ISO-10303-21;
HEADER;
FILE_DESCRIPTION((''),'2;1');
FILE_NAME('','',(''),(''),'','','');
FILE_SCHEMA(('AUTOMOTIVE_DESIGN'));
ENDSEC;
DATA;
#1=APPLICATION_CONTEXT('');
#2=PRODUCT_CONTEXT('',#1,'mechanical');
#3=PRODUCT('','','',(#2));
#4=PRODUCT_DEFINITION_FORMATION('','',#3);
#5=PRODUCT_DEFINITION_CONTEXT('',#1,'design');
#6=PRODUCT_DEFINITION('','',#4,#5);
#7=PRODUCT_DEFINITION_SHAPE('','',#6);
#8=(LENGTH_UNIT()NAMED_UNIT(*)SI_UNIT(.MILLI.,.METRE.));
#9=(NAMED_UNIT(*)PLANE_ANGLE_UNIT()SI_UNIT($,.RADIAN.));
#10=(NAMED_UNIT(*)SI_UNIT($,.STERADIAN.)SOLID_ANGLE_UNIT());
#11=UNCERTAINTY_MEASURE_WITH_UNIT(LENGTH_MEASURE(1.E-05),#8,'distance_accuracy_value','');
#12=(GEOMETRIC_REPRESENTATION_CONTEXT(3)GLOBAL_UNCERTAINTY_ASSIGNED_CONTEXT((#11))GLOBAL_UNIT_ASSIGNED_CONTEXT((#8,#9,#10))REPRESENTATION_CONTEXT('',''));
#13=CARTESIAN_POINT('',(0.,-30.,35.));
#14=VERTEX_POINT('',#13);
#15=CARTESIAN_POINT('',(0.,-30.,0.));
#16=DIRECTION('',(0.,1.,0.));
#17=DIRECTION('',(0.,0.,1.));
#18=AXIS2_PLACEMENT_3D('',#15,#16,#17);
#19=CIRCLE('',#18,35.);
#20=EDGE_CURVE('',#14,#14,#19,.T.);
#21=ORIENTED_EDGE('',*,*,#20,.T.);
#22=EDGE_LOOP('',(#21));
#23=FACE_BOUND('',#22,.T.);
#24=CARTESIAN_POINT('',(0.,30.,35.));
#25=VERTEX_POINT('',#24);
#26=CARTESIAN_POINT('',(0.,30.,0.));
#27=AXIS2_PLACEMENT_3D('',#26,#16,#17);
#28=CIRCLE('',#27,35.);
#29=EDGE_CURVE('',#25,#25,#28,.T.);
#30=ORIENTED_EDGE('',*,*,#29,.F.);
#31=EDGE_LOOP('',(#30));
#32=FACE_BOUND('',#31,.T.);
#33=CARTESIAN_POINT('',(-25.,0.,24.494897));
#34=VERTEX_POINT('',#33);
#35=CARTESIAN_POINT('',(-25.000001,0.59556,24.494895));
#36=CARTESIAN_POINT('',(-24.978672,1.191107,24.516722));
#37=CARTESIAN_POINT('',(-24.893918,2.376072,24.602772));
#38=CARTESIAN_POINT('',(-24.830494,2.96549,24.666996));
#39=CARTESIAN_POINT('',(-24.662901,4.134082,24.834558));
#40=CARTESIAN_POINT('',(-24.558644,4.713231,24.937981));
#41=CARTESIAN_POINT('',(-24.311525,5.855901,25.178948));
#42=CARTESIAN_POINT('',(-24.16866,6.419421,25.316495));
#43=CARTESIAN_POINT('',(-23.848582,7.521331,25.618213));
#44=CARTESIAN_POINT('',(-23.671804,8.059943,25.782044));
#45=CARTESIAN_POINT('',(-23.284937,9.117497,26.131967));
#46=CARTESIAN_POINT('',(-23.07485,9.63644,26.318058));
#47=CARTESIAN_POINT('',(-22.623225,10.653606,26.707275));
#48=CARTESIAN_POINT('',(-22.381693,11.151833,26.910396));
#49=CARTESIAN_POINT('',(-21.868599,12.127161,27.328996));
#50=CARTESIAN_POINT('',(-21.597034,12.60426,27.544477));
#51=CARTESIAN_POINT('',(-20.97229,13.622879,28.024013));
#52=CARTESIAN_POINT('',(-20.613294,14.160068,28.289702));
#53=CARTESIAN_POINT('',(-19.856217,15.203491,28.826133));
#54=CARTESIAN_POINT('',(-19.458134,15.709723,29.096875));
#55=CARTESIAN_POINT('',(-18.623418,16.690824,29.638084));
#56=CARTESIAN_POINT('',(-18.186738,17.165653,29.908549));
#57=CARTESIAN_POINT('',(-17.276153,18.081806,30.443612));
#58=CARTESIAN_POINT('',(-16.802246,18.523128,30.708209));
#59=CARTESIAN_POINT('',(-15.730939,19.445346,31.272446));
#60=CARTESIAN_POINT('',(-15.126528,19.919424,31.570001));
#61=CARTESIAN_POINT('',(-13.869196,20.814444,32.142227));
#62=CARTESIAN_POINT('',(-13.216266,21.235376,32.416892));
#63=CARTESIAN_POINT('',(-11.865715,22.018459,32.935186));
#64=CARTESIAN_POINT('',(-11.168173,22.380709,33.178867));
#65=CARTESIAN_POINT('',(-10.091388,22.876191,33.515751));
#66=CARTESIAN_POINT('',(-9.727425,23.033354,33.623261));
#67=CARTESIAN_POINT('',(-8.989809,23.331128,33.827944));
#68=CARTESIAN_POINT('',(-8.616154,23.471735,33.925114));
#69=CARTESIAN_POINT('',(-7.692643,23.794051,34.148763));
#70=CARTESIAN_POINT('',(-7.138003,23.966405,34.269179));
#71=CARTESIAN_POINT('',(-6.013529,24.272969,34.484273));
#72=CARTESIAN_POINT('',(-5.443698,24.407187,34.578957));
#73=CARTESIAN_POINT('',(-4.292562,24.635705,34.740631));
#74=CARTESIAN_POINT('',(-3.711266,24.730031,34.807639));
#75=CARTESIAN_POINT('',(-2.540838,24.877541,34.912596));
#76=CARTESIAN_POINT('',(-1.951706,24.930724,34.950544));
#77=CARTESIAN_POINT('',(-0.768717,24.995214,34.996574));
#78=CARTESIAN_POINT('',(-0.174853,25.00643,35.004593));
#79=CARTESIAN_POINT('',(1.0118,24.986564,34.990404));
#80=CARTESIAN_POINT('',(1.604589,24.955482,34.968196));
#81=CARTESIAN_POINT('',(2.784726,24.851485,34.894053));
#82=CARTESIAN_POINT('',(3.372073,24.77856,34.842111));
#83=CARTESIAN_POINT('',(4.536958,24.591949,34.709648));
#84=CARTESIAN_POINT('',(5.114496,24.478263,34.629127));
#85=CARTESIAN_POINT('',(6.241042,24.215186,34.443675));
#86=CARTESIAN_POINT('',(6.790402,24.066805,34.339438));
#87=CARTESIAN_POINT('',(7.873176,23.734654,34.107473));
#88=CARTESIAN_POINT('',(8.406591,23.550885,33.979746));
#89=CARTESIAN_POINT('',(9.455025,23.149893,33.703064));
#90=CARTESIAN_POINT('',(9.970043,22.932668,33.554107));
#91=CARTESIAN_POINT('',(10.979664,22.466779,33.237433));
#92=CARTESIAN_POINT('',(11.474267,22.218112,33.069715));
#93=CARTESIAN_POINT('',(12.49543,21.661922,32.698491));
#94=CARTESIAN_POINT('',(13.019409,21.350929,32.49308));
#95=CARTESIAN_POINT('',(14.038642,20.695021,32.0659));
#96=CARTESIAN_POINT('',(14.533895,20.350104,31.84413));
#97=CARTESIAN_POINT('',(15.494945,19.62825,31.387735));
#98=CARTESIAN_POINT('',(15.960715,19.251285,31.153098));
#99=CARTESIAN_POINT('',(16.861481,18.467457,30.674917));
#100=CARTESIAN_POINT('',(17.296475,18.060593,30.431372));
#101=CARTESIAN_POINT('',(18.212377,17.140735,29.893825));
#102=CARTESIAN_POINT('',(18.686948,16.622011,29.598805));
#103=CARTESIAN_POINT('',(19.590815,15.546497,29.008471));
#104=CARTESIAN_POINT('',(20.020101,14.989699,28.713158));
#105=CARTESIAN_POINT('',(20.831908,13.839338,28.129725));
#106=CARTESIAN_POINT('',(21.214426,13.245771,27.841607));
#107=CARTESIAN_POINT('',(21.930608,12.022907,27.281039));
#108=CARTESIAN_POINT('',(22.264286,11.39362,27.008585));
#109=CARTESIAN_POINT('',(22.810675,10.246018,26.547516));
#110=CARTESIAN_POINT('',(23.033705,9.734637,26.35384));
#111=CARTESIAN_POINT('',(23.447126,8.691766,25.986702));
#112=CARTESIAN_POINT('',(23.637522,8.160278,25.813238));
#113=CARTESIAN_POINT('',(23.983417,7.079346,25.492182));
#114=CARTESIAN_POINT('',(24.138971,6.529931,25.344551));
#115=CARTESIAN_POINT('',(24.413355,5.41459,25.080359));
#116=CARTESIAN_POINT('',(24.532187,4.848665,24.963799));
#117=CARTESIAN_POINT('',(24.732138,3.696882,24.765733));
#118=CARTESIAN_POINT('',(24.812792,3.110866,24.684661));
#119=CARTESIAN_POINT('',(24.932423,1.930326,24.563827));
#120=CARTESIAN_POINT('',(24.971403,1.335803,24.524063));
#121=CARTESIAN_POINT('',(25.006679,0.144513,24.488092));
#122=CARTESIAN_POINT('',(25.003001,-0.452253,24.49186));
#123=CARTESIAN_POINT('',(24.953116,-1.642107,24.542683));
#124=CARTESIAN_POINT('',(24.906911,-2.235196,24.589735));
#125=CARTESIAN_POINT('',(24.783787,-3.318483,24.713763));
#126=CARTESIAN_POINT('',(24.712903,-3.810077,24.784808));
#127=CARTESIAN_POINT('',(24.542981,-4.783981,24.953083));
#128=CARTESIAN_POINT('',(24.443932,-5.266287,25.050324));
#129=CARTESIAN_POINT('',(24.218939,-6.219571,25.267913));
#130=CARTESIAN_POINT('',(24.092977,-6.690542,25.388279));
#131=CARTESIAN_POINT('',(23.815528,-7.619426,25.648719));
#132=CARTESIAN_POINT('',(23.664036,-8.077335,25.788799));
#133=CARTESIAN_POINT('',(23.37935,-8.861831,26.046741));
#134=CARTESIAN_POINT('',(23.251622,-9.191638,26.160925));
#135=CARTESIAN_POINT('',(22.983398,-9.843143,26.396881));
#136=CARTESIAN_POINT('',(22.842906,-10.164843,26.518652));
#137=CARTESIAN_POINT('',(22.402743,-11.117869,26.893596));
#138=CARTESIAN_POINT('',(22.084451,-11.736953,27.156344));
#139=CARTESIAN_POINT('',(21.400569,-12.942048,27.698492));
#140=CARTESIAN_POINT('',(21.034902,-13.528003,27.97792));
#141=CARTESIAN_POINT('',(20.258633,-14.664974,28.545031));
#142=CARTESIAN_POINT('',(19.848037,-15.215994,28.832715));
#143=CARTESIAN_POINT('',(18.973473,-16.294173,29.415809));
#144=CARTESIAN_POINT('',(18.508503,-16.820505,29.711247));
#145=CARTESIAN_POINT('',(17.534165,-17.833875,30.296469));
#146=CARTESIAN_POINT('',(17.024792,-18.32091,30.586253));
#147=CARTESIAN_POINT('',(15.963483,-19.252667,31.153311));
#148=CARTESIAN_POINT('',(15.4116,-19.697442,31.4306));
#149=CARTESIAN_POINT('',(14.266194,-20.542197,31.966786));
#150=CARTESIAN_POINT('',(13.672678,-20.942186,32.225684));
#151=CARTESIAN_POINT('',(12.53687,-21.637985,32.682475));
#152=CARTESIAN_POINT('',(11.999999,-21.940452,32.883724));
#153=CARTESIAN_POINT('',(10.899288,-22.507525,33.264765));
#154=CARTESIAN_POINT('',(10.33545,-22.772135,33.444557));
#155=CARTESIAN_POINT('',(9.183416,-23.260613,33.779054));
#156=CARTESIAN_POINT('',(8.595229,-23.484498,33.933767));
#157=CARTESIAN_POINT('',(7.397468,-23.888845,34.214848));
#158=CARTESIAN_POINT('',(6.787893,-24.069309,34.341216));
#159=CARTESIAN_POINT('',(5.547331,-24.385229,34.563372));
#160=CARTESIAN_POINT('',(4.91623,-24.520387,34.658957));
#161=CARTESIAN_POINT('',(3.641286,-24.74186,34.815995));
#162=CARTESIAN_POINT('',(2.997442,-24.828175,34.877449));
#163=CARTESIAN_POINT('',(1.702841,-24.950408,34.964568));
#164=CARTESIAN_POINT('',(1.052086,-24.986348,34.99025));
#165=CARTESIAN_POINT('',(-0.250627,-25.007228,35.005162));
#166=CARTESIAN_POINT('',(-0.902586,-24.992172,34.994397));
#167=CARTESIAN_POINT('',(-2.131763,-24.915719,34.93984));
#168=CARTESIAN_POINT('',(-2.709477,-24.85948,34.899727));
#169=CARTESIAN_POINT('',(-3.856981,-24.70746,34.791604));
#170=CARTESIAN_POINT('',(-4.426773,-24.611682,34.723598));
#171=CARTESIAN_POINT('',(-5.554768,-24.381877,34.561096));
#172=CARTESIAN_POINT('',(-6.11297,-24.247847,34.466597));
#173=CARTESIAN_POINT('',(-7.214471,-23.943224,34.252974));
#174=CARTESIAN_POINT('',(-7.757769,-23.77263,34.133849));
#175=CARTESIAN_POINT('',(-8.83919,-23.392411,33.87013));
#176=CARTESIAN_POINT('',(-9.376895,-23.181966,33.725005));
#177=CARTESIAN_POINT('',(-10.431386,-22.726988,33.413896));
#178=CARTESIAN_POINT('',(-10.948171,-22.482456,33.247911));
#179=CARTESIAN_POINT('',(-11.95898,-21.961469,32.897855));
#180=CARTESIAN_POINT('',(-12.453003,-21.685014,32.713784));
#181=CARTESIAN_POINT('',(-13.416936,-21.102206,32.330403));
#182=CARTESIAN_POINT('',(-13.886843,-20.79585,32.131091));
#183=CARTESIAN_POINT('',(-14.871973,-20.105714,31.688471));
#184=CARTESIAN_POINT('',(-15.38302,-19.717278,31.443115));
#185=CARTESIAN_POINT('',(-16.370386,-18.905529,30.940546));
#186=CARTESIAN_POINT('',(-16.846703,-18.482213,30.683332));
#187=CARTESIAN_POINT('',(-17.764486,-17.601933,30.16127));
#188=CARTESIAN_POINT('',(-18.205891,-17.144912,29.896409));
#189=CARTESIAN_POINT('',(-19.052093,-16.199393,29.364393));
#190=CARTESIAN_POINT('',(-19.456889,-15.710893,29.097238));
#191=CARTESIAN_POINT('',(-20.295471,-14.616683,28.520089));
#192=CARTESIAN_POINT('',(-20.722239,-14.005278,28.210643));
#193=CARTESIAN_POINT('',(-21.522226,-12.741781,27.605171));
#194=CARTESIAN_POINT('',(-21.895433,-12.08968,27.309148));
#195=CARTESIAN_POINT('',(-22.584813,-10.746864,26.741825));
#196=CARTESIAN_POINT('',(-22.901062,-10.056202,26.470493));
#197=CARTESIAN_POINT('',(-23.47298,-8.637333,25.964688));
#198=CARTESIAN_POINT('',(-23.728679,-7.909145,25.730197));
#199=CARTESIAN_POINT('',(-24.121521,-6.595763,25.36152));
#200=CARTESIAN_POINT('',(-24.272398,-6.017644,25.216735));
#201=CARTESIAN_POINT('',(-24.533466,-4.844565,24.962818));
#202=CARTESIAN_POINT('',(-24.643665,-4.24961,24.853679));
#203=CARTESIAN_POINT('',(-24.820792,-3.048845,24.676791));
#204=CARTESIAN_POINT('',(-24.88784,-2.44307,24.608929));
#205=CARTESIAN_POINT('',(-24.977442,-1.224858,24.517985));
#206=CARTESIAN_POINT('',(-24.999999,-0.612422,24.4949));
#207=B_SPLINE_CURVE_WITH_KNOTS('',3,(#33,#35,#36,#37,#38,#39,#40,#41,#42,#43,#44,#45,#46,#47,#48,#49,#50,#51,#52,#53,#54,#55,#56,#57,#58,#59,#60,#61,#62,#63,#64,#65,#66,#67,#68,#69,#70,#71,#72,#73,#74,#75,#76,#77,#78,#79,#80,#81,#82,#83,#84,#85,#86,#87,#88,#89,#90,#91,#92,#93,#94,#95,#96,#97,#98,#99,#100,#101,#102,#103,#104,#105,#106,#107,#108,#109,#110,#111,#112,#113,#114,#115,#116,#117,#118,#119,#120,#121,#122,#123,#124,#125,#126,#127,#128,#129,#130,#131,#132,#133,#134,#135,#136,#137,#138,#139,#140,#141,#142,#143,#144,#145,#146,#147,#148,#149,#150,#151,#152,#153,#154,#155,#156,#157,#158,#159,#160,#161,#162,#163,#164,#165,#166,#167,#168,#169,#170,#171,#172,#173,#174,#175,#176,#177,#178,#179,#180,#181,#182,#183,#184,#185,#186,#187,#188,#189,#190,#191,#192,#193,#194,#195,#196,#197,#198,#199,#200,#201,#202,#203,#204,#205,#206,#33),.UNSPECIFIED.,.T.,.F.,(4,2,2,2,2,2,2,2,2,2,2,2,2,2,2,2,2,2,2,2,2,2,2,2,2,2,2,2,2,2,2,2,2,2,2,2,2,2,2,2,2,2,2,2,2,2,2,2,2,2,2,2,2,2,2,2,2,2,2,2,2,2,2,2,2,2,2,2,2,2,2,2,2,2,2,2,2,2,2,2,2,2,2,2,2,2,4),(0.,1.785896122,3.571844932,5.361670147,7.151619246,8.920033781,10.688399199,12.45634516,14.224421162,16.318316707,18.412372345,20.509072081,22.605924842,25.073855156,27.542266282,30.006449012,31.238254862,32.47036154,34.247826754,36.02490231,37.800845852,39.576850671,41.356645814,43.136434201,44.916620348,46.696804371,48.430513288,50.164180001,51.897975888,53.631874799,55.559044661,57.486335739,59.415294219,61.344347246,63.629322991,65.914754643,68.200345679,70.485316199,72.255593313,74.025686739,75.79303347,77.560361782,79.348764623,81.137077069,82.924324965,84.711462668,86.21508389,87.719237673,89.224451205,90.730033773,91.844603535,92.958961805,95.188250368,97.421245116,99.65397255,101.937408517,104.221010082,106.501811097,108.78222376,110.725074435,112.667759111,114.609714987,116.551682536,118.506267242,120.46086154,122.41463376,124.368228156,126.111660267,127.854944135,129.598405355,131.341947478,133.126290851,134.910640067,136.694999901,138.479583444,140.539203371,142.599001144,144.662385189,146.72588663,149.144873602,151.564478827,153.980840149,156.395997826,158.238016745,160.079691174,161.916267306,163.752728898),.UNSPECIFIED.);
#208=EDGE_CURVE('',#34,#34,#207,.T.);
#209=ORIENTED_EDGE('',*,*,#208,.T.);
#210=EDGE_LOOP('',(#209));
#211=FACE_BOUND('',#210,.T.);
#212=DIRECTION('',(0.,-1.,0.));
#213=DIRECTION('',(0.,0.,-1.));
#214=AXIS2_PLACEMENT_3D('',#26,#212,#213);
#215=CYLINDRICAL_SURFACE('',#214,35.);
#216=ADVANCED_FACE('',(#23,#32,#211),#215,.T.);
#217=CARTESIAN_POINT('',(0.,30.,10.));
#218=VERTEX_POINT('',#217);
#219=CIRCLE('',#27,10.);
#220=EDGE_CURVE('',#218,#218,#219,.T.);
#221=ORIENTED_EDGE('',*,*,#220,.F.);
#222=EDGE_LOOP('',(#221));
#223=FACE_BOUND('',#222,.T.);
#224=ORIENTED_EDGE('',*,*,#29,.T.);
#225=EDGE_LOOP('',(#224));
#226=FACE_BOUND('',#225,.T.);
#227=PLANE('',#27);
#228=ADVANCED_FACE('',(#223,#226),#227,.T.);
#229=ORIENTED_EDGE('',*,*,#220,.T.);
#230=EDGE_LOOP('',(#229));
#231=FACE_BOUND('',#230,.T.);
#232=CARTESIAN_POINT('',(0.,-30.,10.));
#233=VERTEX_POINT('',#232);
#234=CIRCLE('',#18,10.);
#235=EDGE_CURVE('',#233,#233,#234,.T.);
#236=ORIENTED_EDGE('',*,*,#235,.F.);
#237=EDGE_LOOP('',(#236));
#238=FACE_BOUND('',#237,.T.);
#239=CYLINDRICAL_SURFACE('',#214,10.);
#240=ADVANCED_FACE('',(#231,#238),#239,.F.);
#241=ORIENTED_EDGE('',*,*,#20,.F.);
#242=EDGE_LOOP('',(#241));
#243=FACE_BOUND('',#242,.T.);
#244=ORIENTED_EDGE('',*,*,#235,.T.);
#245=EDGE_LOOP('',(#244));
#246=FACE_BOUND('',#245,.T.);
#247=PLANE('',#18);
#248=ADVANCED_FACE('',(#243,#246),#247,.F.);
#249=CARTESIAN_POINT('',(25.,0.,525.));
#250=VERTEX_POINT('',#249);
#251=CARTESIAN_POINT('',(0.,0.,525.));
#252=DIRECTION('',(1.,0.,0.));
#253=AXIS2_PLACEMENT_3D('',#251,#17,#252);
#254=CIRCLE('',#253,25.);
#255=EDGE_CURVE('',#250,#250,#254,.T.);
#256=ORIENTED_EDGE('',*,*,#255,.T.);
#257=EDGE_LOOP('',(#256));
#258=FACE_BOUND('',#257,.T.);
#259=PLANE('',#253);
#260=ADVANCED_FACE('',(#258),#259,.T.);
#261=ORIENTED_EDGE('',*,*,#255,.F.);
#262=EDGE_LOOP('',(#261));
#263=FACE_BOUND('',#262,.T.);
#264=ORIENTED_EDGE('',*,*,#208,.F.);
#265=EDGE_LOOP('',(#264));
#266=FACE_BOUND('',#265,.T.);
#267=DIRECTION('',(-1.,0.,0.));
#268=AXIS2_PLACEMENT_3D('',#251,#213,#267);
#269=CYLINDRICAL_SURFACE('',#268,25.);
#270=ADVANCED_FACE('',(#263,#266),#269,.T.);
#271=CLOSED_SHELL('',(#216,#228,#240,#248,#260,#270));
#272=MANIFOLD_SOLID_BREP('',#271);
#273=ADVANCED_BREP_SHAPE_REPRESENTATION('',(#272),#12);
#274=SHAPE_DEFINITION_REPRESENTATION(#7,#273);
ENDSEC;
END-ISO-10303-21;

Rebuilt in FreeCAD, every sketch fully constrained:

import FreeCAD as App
import Part
import Sketcher

V = App.Vector

doc = App.newDocument("Part")
body = doc.addObject("PartDesign::Body", "Body")

# Sketch on XY plane
sketch1 = body.newObject("Sketcher::SketchObject", "Sketch")
sketch1.AttachmentSupport = (doc.getObject("XY_Plane"), [""])
sketch1.MapMode = "FlatFace"
sketch1.addGeometry(Part.Circle(V(0, 0, 0), V(0, 0, 1), 25), False)
sketch1.addConstraint([
    Sketcher.Constraint("Coincident", 0, 3, -1, 1),
    Sketcher.Constraint("Diameter", 0, 50.0),
])
pad1 = body.newObject("PartDesign::Pad", "Pad")
pad1.Profile = sketch1
pad1.Length = 525

# Sketch on XZ plane
sketch2 = body.newObject("Sketcher::SketchObject", "Sketch001")
sketch2.AttachmentSupport = (doc.getObject("XZ_Plane"), [""])
sketch2.MapMode = "FlatFace"
sketch2.addGeometry([
    Part.Circle(V(0, 0, 0), V(0, 0, 1), 35),
    Part.Circle(V(0, 0, 0), V(0, 0, 1), 10),
], False)
sketch2.addConstraint([
    Sketcher.Constraint("Coincident", 0, 3, -1, 1),
    Sketcher.Constraint("Coincident", 1, 3, -1, 1),
    Sketcher.Constraint("Diameter", 0, 70.0),
    Sketcher.Constraint("Diameter", 1, 20.0),
])
pad2 = body.newObject("PartDesign::Pad", "Pad001")
pad2.Profile = sketch2
pad2.Length = 60
pad2.Midplane = True

# Sketch on XZ plane
sketch3 = body.newObject("Sketcher::SketchObject", "Sketch002")
sketch3.AttachmentSupport = (doc.getObject("XZ_Plane"), [""])
sketch3.MapMode = "FlatFace"
sketch3.addGeometry(Part.Circle(V(0, 0, 0), V(0, 0, 1), 10), False)
sketch3.addConstraint([
    Sketcher.Constraint("Coincident", 0, 3, -1, 1),
    Sketcher.Constraint("Diameter", 0, 20.0),
])
pocket1 = body.newObject("PartDesign::Pocket", "Pocket")
pocket1.Profile = sketch3
pocket1.Type = "ThroughAll"
pocket1.Midplane = True

doc.recompute()
